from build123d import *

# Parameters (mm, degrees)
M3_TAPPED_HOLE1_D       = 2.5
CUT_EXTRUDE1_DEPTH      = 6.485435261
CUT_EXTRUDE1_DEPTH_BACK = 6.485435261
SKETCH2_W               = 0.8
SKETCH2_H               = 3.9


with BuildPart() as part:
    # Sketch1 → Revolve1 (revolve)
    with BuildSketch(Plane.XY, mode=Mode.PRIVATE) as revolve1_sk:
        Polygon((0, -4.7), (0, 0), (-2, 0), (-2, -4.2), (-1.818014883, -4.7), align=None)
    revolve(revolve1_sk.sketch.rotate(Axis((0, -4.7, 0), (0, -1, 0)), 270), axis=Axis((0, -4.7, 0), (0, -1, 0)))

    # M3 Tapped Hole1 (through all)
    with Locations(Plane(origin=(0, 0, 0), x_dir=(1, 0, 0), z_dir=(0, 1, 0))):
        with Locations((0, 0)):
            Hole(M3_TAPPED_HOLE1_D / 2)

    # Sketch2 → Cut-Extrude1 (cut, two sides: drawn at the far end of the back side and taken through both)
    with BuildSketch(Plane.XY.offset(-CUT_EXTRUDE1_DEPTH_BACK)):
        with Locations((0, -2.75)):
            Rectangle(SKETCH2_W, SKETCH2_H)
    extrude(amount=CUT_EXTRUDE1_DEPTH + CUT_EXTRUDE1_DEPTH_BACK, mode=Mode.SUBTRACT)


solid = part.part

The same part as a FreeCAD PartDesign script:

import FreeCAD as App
import Part
import Sketcher
Q = App.Units.Quantity

doc = App.newDocument("Part")
body = doc.addObject("PartDesign::Body", "Body")

# Sketch on XY plane
sketch1 = body.newObject("Sketcher::SketchObject", "Sketch")
sketch1.AttachmentSupport = (doc.getObject("XY_Plane"), [""])
sketch1.MapMode = "FlatFace"
sketch1.addGeometry([
    Part.LineSegment(App.Vector(0, -4.7, 0), App.Vector(0, 0, 0)),  # 0
    Part.LineSegment(App.Vector(0, 0, 0), App.Vector(-2, 0, 0)),  # 1
    Part.LineSegment(App.Vector(-2, 0, 0), App.Vector(-2, -4.2, 0)),  # 2
    Part.LineSegment(App.Vector(-2, -4.2, 0), App.Vector(-1.8, -4.7, 0)),  # 3
    Part.LineSegment(App.Vector(-1.8, -4.7, 0), App.Vector(0, -4.7, 0)),  # 4
], False)
sketch1.addConstraint([
    Sketcher.Constraint("Coincident", 0, 2, 1, 1),
    Sketcher.Constraint("Coincident", 1, 2, 2, 1),
    Sketcher.Constraint("Coincident", 2, 2, 3, 1),
    Sketcher.Constraint("Coincident", 3, 2, 4, 1),
    Sketcher.Constraint("Coincident", 4, 2, 0, 1),
    Sketcher.Constraint("Vertical", 0),
    Sketcher.Constraint("Horizontal", 1),
    Sketcher.Constraint("Vertical", 2),
    Sketcher.Constraint("Horizontal", 4),
    Sketcher.Constraint("Coincident", 0, 2, -1, 1),
    Sketcher.Constraint("DistanceX", 1, 2, 1, 1, Q("2 mm")),
    Sketcher.Constraint("Angle", 3, Q("-70 deg")),
    Sketcher.Constraint("DistanceY", 0, 1, 0, 2, Q("4.7 mm")),
    Sketcher.Constraint("DistanceY", 2, 2, 2, 1, Q("4.2 mm")),
])
revolution = body.newObject("PartDesign::Revolution", "Revolution")
revolution.Profile = sketch1
revolution.ReferenceAxis = (sketch1, ["V_Axis"])
revolution.Angle = 360

# Sketch on XZ plane
sketch2 = body.newObject("Sketcher::SketchObject", "Sketch001")
sketch2.AttachmentSupport = (doc.getObject("XZ_Plane"), [""])
sketch2.MapMode = "FlatFace"
sketch2.addGeometry(Part.Circle(App.Vector(0, 0, 0), App.Vector(0, 0, 1), 1.2), False)
sketch2.addConstraint([
    Sketcher.Constraint("Coincident", 0, 3, -1, 1),
    Sketcher.Constraint("Diameter", 0, Q("2.5 mm")),
])
doc.recompute()
hole = body.newObject("PartDesign::Hole", "Hole")
hole.Profile = sketch2
hole.ThreadType = "None"
hole.Diameter = 2.5
hole.DepthType = "ThroughAll"
hole.Reversed = True

# Sketch on XY plane
sketch3 = body.newObject("Sketcher::SketchObject", "Sketch002")
sketch3.AttachmentSupport = (doc.getObject("XY_Plane"), [""])
sketch3.MapMode = "FlatFace"
sketch3.addGeometry([
    Part.LineSegment(App.Vector(-0.4, -0.8, 0), App.Vector(-0.4, -4.7, 0)),
    Part.LineSegment(App.Vector(-0.4, -4.7, 0), App.Vector(0.4, -4.7, 0)),
    Part.LineSegment(App.Vector(0.4, -4.7, 0), App.Vector(0.4, -0.8, 0)),
    Part.LineSegment(App.Vector(0.4, -0.8, 0), App.Vector(-0.4, -0.8, 0)),
], False)
sketch3.addConstraint([
    Sketcher.Constraint("Coincident", 0, 2, 1, 1),
    Sketcher.Constraint("Coincident", 1, 2, 2, 1),
    Sketcher.Constraint("Coincident", 2, 2, 3, 1),
    Sketcher.Constraint("Coincident", 3, 2, 0, 1),
    Sketcher.Constraint("Vertical", 0),
    Sketcher.Constraint("Horizontal", 1),
    Sketcher.Constraint("Vertical", 2),
    Sketcher.Constraint("Horizontal", 3),
    Sketcher.Constraint("DistanceX", 1, 1, 1, 2, Q("0.8 mm")),
    Sketcher.Constraint("DistanceY", 0, 2, 0, 1, Q("3.9 mm")),
    Sketcher.Constraint("DistanceX", 0, 2, -1, 1, Q("0.4 mm")),
    Sketcher.Constraint("DistanceY", 0, 2, -1, 1, Q("4.7 mm")),
])
pocket1 = body.newObject("PartDesign::Pocket", "Pocket")
pocket1.Profile = sketch3
pocket1.Type = "ThroughAll"
pocket1.Midplane = True

doc.recompute()
